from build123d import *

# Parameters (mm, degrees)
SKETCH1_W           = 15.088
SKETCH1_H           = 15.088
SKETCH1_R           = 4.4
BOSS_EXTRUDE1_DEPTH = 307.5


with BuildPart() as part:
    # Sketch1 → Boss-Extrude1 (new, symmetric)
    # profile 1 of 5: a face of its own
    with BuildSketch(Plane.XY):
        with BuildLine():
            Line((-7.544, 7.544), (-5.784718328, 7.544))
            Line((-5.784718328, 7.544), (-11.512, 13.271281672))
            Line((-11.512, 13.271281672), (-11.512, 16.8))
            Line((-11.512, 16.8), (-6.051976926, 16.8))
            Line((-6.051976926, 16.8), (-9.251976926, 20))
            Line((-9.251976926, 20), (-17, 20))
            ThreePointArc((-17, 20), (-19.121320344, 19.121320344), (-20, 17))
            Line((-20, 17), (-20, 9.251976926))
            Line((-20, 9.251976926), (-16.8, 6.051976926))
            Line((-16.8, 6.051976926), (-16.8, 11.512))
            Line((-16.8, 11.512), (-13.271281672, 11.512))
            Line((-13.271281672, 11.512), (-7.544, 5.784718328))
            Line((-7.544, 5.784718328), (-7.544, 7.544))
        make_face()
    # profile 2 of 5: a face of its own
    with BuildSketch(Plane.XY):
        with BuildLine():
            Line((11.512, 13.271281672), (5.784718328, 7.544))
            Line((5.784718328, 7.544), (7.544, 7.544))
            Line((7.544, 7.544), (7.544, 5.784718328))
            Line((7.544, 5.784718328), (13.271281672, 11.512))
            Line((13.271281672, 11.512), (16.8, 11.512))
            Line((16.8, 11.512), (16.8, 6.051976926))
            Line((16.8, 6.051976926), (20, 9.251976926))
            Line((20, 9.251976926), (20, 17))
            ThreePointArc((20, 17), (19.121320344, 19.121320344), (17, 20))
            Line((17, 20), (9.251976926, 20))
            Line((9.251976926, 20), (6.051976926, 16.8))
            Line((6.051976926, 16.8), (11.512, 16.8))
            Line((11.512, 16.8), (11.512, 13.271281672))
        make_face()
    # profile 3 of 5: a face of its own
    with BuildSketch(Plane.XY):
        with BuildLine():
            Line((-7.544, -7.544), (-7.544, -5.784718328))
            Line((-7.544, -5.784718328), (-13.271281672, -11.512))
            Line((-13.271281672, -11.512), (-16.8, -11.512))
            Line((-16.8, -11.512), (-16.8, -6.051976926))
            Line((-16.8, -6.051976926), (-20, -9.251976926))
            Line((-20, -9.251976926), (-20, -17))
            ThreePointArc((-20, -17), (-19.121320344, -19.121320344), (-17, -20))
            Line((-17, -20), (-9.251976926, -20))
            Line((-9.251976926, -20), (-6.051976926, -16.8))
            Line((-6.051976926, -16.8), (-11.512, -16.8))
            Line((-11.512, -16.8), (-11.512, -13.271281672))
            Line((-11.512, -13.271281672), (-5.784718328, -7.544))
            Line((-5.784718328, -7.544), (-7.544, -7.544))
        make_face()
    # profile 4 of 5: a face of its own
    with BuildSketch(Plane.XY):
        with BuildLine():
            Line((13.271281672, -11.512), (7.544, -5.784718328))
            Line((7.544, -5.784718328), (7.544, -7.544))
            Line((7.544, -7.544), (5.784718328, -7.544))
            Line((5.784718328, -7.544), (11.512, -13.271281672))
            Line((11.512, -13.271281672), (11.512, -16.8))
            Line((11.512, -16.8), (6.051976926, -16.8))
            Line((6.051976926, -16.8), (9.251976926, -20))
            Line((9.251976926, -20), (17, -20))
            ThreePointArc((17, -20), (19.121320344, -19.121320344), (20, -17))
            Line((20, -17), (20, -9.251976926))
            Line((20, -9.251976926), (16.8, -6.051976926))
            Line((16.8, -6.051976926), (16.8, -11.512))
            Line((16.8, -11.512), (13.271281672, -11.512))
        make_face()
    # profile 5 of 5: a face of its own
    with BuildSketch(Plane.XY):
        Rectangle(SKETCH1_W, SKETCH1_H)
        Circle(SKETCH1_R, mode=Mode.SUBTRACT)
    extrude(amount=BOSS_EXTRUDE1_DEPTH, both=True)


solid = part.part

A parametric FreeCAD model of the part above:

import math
import FreeCAD as App
import Part
import Sketcher
from FreeCAD import Vector

doc = App.newDocument("Part")
params = doc.addObject("Spreadsheet::Sheet", "Params")
for row, (alias, value) in enumerate([
    ("sketch1_radius", "3 mm"),
    ("sketch1_diameter", "8.8 mm"),
    ("pad1_length", "615 mm"),
], start=1):
    params.set(f"A{row}", alias)
    params.set(f"B{row}", "=" + value)
    params.setAlias(f"B{row}", alias)

body = doc.addObject("PartDesign::Body", "Body")

sketch1 = body.newObject("Sketcher::SketchObject", "Sketch")
sketch1.AttachmentSupport = (doc.getObject("XY_Plane"), [""])
sketch1.MapMode = "FlatFace"
sketch1.addGeometry([
    Part.LineSegment(Vector(-5.8, 7.5, 0), Vector(-11.5, 13.3, 0)),
    Part.LineSegment(Vector(-11.5, 13.3, 0), Vector(-11.5, 16.8, 0)),
    Part.LineSegment(Vector(-11.5, 16.8, 0), Vector(-6.1, 16.8, 0)),
    Part.LineSegment(Vector(-6.1, 16.8, 0), Vector(-9.3, 20, 0)),
    Part.LineSegment(Vector(-9.3, 20, 0), Vector(-17, 20, 0)),
    Part.ArcOfCircle(Part.Circle(Vector(-17, 17, 0), Vector(0, 0, 1), 3), math.radians(90), math.radians(180)),
    Part.LineSegment(Vector(-20, 17, 0), Vector(-20, 9.3, 0)),
    Part.LineSegment(Vector(-20, 9.3, 0), Vector(-16.8, 6.1, 0)),
    Part.LineSegment(Vector(-16.8, 6.1, 0), Vector(-16.8, 11.5, 0)),
    Part.LineSegment(Vector(-16.8, 11.5, 0), Vector(-13.3, 11.5, 0)),
    Part.LineSegment(Vector(-13.3, 11.5, 0), Vector(-7.5, 5.8, 0)),
    Part.LineSegment(Vector(-7.5, 5.8, 0), Vector(-7.5, -5.8, 0)),
    Part.LineSegment(Vector(-7.5, -5.8, 0), Vector(-13.3, -11.5, 0)),
    Part.LineSegment(Vector(-13.3, -11.5, 0), Vector(-16.8, -11.5, 0)),
    Part.LineSegment(Vector(-16.8, -11.5, 0), Vector(-16.8, -6.1, 0)),
    Part.LineSegment(Vector(-16.8, -6.1, 0), Vector(-20, -9.3, 0)),
    Part.LineSegment(Vector(-20, -9.3, 0), Vector(-20, -17, 0)),
    Part.ArcOfCircle(Part.Circle(Vector(-17, -17, 0), Vector(0, 0, 1), 3), math.radians(180), math.radians(270)),
    Part.LineSegment(Vector(-17, -20, 0), Vector(-9.3, -20, 0)),
    Part.LineSegment(Vector(-9.3, -20, 0), Vector(-6.1, -16.8, 0)),
    Part.LineSegment(Vector(-6.1, -16.8, 0), Vector(-11.5, -16.8, 0)),
    Part.LineSegment(Vector(-11.5, -16.8, 0), Vector(-11.5, -13.3, 0)),
    Part.LineSegment(Vector(-11.5, -13.3, 0), Vector(-5.8, -7.5, 0)),
    Part.LineSegment(Vector(-5.8, -7.5, 0), Vector(5.8, -7.5, 0)),
    Part.LineSegment(Vector(5.8, -7.5, 0), Vector(11.5, -13.3, 0)),
    Part.LineSegment(Vector(11.5, -13.3, 0), Vector(11.5, -16.8, 0)),
    Part.LineSegment(Vector(11.5, -16.8, 0), Vector(6.1, -16.8, 0)),
    Part.LineSegment(Vector(6.1, -16.8, 0), Vector(9.3, -20, 0)),
    Part.LineSegment(Vector(9.3, -20, 0), Vector(17, -20, 0)),
    Part.ArcOfCircle(Part.Circle(Vector(17, -17, 0), Vector(0, 0, 1), 3), math.radians(-90), math.radians(0)),
    Part.LineSegment(Vector(20, -17, 0), Vector(20, -9.3, 0)),
    Part.LineSegment(Vector(20, -9.3, 0), Vector(16.8, -6.1, 0)),
    Part.LineSegment(Vector(16.8, -6.1, 0), Vector(16.8, -11.5, 0)),
    Part.LineSegment(Vector(16.8, -11.5, 0), Vector(13.3, -11.5, 0)),
    Part.LineSegment(Vector(13.3, -11.5, 0), Vector(7.5, -5.8, 0)),
    Part.LineSegment(Vector(7.5, -5.8, 0), Vector(7.5, 5.8, 0)),
    Part.LineSegment(Vector(7.5, 5.8, 0), Vector(13.3, 11.5, 0)),
    Part.LineSegment(Vector(13.3, 11.5, 0), Vector(16.8, 11.5, 0)),
    Part.LineSegment(Vector(16.8, 11.5, 0), Vector(16.8, 6.1, 0)),
    Part.LineSegment(Vector(16.8, 6.1, 0), Vector(20, 9.3, 0)),
    Part.LineSegment(Vector(20, 9.3, 0), Vector(20, 17, 0)),
    Part.ArcOfCircle(Part.Circle(Vector(17, 17, 0), Vector(0, 0, 1), 3), math.radians(0), math.radians(90)),
    Part.LineSegment(Vector(17, 20, 0), Vector(9.3, 20, 0)),
    Part.LineSegment(Vector(9.3, 20, 0), Vector(6.1, 16.8, 0)),
    Part.LineSegment(Vector(6.1, 16.8, 0), Vector(11.5, 16.8, 0)),
    Part.LineSegment(Vector(11.5, 16.8, 0), Vector(11.5, 13.3, 0)),
    Part.LineSegment(Vector(11.5, 13.3, 0), Vector(5.8, 7.5, 0)),
    Part.LineSegment(Vector(5.8, 7.5, 0), Vector(-5.8, 7.5, 0)),
    Part.Circle(Vector(0, 0, 0), Vector(0, 0, 1), 4.4),
], False)
sketch1.addConstraint([
    Sketcher.Constraint("Coincident", 0, 2, 1, 1),
    Sketcher.Constraint("Coincident", 1, 2, 2, 1),
    Sketcher.Constraint("Coincident", 2, 2, 3, 1),
    Sketcher.Constraint("Coincident", 3, 2, 4, 1),
    Sketcher.Constraint("Tangent", 4, 2, 5, 1),
    Sketcher.Constraint("Tangent", 5, 2, 6, 1),
    Sketcher.Constraint("Coincident", 6, 2, 7, 1),
    Sketcher.Constraint("Coincident", 7, 2, 8, 1),
    Sketcher.Constraint("Coincident", 8, 2, 9, 1),
    Sketcher.Constraint("Coincident", 9, 2, 10, 1),
    Sketcher.Constraint("Coincident", 10, 2, 11, 1),
    Sketcher.Constraint("Coincident", 11, 2, 12, 1),
    Sketcher.Constraint("Coincident", 12, 2, 13, 1),
    Sketcher.Constraint("Coincident", 13, 2, 14, 1),
    Sketcher.Constraint("Coincident", 14, 2, 15, 1),
    Sketcher.Constraint("Coincident", 15, 2, 16, 1),
    Sketcher.Constraint("Tangent", 16, 2, 17, 1),
    Sketcher.Constraint("Tangent", 17, 2, 18, 1),
    Sketcher.Constraint("Coincident", 18, 2, 19, 1),
    Sketcher.Constraint("Coincident", 19, 2, 20, 1),
    Sketcher.Constraint("Coincident", 20, 2, 21, 1),
    Sketcher.Constraint("Coincident", 21, 2, 22, 1),
    Sketcher.Constraint("Coincident", 22, 2, 23, 1),
    Sketcher.Constraint("Coincident", 23, 2, 24, 1),
    Sketcher.Constraint("Coincident", 24, 2, 25, 1),
    Sketcher.Constraint("Coincident", 25, 2, 26, 1),
    Sketcher.Constraint("Coincident", 26, 2, 27, 1),
    Sketcher.Constraint("Coincident", 27, 2, 28, 1),
    Sketcher.Constraint("Tangent", 28, 2, 29, 1),
    Sketcher.Constraint("Tangent", 29, 2, 30, 1),
    Sketcher.Constraint("Coincident", 30, 2, 31, 1),
    Sketcher.Constraint("Coincident", 31, 2, 32, 1),
    Sketcher.Constraint("Coincident", 32, 2, 33, 1),
    Sketcher.Constraint("Coincident", 33, 2, 34, 1),
    Sketcher.Constraint("Coincident", 34, 2, 35, 1),
    Sketcher.Constraint("Coincident", 35, 2, 36, 1),
    Sketcher.Constraint("Coincident", 36, 2, 37, 1),
    Sketcher.Constraint("Coincident", 37, 2, 38, 1),
    Sketcher.Constraint("Coincident", 38, 2, 39, 1),
    Sketcher.Constraint("Coincident", 39, 2, 40, 1),
    Sketcher.Constraint("Tangent", 40, 2, 41, 1),
    Sketcher.Constraint("Tangent", 41, 2, 42, 1),
    Sketcher.Constraint("Coincident", 42, 2, 43, 1),
    Sketcher.Constraint("Coincident", 43, 2, 44, 1),
    Sketcher.Constraint("Coincident", 44, 2, 45, 1),
    Sketcher.Constraint("Coincident", 45, 2, 46, 1),
    Sketcher.Constraint("Coincident", 46, 2, 47, 1),
    Sketcher.Constraint("Coincident", 47, 2, 0, 1),
    Sketcher.Constraint("Vertical", 1),
    Sketcher.Constraint("Horizontal", 2),
    Sketcher.Constraint("Horizontal", 4),
    Sketcher.Constraint("Vertical", 6),
    Sketcher.Constraint("Vertical", 8),
    Sketcher.Constraint("Horizontal", 9),
    Sketcher.Constraint("Vertical", 11),
    Sketcher.Constraint("Horizontal", 13),
    Sketcher.Constraint("Vertical", 14),
    Sketcher.Constraint("Vertical", 16),
    Sketcher.Constraint("Horizontal", 18),
    Sketcher.Constraint("Horizontal", 20),
    Sketcher.Constraint("Vertical", 21),
    Sketcher.Constraint("Horizontal", 23),
    Sketcher.Constraint("Vertical", 25),
    Sketcher.Constraint("Horizontal", 26),
    Sketcher.Constraint("Horizontal", 28),
    Sketcher.Constraint("Vertical", 30),
    Sketcher.Constraint("Vertical", 32),
    Sketcher.Constraint("Horizontal", 33),
    Sketcher.Constraint("Vertical", 35),
    Sketcher.Constraint("Horizontal", 37),
    Sketcher.Constraint("Vertical", 38),
    Sketcher.Constraint("Vertical", 40),
    Sketcher.Constraint("Horizontal", 42),
    Sketcher.Constraint("Horizontal", 44),
    Sketcher.Constraint("Vertical", 45),
    Sketcher.Constraint("Horizontal", 47),
    Sketcher.Constraint("Coincident", 48, 3, -1, 1),
    Sketcher.Constraint("Equal", 5, 17),
    Sketcher.Constraint("Equal", 17, 29),
    Sketcher.Constraint("Equal", 29, 41),
    Sketcher.Constraint("Symmetric", 5, 3, 29, 3, -1, 1),
    Sketcher.Constraint("Symmetric", 17, 3, 41, 3, -1, 1),
    Sketcher.Constraint("Symmetric", 0, 2, 24, 2, -1, 1),
    Sketcher.Constraint("Symmetric", 2, 2, 26, 2, -1, 1),
    Sketcher.Constraint("Symmetric", 7, 2, 31, 2, -1, 1),
    Sketcher.Constraint("Symmetric", 9, 2, 33, 2, -1, 1),
    Sketcher.Constraint("Symmetric", 10, 2, 34, 2, -1, 1),
    Sketcher.Constraint("Symmetric", 12, 2, 36, 2, -1, 1),
    Sketcher.Constraint("Symmetric", 14, 2, 38, 2, -1, 1),
    Sketcher.Constraint("Symmetric", 19, 2, 43, 2, -1, 1),
    Sketcher.Constraint("Symmetric", 21, 2, 45, 2, -1, 1),
    Sketcher.Constraint("Symmetric", 22, 2, 46, 2, -1, 1),
    Sketcher.Constraint("Symmetric", 17, 3, 29, 3, -2),
    Sketcher.Constraint("Symmetric", 21, 2, 24, 2, -2),
    Sketcher.Constraint("Symmetric", 19, 2, 26, 2, -2),
    Sketcher.Constraint("Symmetric", 14, 2, 31, 2, -2),
    Sketcher.Constraint("Symmetric", 12, 2, 33, 2, -2),
    Sketcher.Constraint("Parallel", 0, 3),
    Sketcher.Constraint("Parallel", 3, 7),
    Sketcher.Constraint("Parallel", 7, 10),
    Sketcher.Constraint("Perpendicular", 10, 12),
    Sketcher.Constraint("Parallel", 12, 15),
    Sketcher.Constraint("Parallel", 15, 19),
    Sketcher.Constraint("Parallel", 19, 22),
    Sketcher.Constraint("Perpendicular", 22, 24),
    Sketcher.Constraint("Parallel", 24, 27),
    Sketcher.Constraint("Parallel", 27, 31),
    Sketcher.Constraint("Perpendicular", 34, 36),
    Sketcher.Constraint("Parallel", 36, 39),
    Sketcher.Constraint("Parallel", 39, 43),
    Sketcher.Constraint("Horizontal", 15, 2, 30, 2),
    Sketcher.Constraint("Equal", 37, 1),
    Sketcher.Constraint("Equal", 42, 6),
    Sketcher.Constraint("Equal", 44, 8),
    Sketcher.Constraint("Equal", 47, 11),
    Sketcher.Constraint("Equal", 3, 7),
    Sketcher.Constraint("Equal", 0, 10),
    Sketcher.Constraint("Radius", 5, 3.0),
    Sketcher.Constraint("Diameter", 48, 8.8),
    Sketcher.Constraint("DistanceX", 5, 3, -1, 1, 17.0),
    Sketcher.Constraint("DistanceY", -1, 1, 1, 2, 16.8),
    Sketcher.Constraint("DistanceX", 0, 2, -1, 1, 11.512),
    Sketcher.Constraint("DistanceX", 10, 2, -1, 1, 7.544),
    Sketcher.Constraint("Distance", 0, 8.099599),
    Sketcher.Constraint("DistanceX", 2, 1, 2, 2, 5.460023),
])
sketch1.setExpression("Constraints[117]", "Params.sketch1_radius")
sketch1.setExpression("Constraints[118]", "Params.sketch1_diameter")
pad1 = body.newObject("PartDesign::Pad", "Pad")
pad1.Profile = sketch1
pad1.setExpression("Length", "Params.pad1_length")
pad1.Midplane = True

doc.recompute()
